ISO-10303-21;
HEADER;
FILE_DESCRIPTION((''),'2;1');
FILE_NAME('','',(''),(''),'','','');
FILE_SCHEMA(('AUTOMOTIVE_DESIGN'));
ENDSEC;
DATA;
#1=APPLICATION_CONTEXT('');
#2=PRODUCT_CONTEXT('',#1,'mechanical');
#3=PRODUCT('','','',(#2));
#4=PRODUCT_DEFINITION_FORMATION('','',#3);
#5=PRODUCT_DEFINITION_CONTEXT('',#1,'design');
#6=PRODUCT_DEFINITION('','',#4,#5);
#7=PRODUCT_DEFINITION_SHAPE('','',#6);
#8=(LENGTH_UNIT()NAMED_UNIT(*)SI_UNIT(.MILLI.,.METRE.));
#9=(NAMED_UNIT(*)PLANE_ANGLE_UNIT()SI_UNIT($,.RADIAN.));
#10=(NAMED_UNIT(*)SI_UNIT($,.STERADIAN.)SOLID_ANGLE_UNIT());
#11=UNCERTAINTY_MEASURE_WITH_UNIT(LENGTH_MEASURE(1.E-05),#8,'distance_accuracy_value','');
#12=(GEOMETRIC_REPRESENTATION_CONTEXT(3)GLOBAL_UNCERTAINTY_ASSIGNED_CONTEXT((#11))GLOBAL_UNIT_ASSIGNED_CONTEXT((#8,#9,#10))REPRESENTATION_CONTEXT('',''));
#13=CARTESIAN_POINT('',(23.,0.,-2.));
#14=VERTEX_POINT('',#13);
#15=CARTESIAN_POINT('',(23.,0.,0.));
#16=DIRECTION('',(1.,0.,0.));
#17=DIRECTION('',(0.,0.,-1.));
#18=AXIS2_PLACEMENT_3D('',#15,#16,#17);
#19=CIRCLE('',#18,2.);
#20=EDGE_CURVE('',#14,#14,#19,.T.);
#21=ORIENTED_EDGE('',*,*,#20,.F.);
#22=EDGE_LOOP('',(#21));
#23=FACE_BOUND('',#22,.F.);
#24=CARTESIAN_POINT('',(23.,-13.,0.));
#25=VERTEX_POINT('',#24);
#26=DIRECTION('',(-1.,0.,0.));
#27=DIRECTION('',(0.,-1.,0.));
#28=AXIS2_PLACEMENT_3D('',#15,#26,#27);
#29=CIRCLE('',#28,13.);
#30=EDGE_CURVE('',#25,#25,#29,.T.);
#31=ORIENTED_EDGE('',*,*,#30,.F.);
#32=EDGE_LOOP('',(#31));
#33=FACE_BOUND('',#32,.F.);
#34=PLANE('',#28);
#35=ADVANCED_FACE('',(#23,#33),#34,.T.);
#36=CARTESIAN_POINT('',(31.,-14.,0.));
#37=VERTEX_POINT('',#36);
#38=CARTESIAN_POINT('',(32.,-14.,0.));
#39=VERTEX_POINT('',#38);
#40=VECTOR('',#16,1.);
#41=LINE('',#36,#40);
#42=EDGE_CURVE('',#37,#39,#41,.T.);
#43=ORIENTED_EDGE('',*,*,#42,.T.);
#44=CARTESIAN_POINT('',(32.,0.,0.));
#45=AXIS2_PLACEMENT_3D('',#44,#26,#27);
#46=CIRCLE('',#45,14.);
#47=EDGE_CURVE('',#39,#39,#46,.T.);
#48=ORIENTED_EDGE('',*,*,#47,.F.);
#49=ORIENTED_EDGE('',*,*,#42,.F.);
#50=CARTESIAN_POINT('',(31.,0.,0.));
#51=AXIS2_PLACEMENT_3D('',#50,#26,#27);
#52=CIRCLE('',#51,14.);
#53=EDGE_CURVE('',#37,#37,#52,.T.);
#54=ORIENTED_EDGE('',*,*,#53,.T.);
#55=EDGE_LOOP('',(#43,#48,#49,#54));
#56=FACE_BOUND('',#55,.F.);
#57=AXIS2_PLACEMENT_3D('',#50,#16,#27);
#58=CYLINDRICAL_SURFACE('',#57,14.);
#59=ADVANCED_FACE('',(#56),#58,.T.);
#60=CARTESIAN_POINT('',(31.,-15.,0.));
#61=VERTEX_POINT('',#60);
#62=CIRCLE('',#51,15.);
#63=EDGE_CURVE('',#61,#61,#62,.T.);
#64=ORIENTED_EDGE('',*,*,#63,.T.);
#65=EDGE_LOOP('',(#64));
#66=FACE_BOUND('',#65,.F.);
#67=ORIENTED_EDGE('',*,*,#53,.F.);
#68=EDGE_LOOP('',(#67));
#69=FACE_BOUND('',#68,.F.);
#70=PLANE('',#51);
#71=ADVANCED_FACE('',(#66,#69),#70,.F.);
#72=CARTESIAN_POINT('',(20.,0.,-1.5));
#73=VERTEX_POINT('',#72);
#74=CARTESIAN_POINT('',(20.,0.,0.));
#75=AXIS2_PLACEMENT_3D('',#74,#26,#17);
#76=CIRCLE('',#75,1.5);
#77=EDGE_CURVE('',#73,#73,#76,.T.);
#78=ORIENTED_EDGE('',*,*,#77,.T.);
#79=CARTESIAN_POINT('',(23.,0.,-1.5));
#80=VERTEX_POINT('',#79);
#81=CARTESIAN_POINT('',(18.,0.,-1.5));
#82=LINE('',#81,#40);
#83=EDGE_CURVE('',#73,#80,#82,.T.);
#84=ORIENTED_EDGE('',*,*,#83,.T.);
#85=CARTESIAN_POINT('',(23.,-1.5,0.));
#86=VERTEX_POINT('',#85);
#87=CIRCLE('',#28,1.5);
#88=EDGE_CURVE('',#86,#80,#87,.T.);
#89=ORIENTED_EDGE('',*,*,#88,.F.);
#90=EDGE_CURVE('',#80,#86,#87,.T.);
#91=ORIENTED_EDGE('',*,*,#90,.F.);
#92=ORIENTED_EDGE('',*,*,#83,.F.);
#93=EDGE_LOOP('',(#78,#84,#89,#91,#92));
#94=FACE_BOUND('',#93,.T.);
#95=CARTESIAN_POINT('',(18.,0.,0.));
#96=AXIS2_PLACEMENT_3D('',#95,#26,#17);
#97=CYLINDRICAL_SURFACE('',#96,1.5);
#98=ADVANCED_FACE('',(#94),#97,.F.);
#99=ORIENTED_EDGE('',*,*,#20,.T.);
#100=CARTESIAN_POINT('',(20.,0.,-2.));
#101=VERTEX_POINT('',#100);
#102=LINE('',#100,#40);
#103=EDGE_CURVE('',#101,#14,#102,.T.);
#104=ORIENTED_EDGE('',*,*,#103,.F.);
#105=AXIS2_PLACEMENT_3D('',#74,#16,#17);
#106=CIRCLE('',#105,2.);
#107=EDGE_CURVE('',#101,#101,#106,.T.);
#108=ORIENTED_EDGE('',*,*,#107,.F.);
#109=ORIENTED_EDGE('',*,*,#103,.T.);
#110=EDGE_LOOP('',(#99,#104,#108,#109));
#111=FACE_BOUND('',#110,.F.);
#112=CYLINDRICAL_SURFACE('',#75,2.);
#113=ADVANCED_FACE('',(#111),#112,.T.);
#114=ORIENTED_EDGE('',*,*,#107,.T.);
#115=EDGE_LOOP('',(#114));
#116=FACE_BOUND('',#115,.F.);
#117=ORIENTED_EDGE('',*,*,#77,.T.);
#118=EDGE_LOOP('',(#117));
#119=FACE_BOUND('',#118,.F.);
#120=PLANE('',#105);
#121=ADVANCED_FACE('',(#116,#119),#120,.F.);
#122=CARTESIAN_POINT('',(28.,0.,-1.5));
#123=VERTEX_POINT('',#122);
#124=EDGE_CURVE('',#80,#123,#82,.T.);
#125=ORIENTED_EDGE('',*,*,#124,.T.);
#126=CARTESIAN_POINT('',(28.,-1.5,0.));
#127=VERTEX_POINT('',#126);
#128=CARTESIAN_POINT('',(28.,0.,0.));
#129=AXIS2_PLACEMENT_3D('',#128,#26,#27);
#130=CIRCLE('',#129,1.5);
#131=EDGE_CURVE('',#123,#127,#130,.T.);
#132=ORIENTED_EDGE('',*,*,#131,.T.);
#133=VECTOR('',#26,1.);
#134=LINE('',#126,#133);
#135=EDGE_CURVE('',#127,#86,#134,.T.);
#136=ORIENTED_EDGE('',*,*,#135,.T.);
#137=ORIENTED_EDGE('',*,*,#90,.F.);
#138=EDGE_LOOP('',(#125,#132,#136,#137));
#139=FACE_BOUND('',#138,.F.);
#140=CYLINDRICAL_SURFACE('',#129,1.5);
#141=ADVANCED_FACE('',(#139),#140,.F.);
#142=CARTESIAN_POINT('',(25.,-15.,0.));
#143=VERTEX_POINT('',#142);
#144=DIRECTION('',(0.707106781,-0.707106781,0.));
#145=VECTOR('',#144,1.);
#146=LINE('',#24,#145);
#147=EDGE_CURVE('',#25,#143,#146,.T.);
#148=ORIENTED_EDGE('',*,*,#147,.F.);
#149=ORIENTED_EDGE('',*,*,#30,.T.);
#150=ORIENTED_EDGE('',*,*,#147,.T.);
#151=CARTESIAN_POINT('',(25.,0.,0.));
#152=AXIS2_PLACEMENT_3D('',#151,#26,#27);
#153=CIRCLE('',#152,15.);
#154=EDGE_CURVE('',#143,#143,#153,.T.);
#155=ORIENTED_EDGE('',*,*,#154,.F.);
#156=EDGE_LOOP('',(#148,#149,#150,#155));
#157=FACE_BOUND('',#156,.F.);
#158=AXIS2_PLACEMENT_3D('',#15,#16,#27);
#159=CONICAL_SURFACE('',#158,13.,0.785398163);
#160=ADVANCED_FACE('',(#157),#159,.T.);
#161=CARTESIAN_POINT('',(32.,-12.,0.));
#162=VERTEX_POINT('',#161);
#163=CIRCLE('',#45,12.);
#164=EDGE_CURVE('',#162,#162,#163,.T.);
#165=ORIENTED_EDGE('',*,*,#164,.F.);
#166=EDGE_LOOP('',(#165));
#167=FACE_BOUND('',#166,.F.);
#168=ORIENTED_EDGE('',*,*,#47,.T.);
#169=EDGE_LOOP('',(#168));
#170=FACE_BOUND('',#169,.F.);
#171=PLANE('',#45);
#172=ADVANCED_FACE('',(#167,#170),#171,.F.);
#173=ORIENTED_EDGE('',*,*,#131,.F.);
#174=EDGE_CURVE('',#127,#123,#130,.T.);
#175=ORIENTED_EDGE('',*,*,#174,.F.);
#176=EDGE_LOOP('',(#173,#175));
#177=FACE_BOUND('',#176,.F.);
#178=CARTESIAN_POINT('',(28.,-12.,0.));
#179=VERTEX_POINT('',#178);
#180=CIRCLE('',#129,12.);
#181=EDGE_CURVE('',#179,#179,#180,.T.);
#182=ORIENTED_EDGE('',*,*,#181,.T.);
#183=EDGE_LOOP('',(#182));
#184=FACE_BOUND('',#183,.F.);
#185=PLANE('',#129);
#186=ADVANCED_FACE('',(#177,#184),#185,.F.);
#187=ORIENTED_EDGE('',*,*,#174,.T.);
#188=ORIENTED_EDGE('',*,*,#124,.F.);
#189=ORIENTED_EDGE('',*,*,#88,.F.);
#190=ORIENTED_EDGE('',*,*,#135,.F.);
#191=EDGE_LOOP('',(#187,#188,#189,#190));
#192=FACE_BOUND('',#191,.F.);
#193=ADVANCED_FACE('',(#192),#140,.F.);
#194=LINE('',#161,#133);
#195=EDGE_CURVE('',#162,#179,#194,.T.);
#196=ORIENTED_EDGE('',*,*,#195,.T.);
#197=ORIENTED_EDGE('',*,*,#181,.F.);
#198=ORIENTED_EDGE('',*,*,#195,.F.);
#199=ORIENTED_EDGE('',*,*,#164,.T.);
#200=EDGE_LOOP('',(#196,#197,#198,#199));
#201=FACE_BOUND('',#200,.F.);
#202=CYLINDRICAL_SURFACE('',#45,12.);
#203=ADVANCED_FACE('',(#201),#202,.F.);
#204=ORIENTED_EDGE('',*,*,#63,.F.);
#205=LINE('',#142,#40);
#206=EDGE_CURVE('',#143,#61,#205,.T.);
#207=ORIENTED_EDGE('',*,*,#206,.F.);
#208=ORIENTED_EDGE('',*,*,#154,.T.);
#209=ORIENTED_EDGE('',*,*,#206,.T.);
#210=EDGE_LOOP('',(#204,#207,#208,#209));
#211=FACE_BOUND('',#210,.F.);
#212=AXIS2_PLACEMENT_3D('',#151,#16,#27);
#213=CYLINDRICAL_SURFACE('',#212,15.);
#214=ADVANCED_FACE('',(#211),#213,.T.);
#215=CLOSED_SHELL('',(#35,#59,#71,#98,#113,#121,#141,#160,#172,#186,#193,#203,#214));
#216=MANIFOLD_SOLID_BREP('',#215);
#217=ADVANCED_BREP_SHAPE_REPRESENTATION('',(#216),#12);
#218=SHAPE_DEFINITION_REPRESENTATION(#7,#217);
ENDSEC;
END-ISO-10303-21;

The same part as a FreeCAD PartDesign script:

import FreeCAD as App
import Part
import Sketcher
from FreeCAD import Vector
Q = App.Units.Quantity

doc = App.newDocument("Part")
params = doc.addObject("Spreadsheet::Sheet", "Params")
for row, (alias, value) in enumerate([
    ("sketch1_diameter", "3 mm"),
    ("pad1_length", "22 mm"),
    ("sketch2_width", "6 mm"),
    ("sketch2_width2", "1 mm"),
    ("sketch2_width3", "4 mm"),
    ("sketch2_width4", "5 mm"),
    ("sketch2_height", "2 mm"),
    ("revolution_angle", "360 deg"),
    ("sketch3_diameter", "4 mm"),
    ("pad2_length", "3 mm"),
], start=1):
    params.set(f"A{row}", alias)
    params.set(f"B{row}", "=" + value)
    params.setAlias(f"B{row}", alias)

body = doc.addObject("PartDesign::Body", "Body")

# Sketch on YZ plane
sketch1 = body.newObject("Sketcher::SketchObject", "Sketch")
sketch1.AttachmentSupport = (doc.getObject("YZ_Plane"), [""])
sketch1.MapMode = "FlatFace"
sketch1.AttachmentOffset = App.Placement(Vector(0, 0, 18), App.Rotation())
sketch1.addGeometry(Part.Circle(Vector(0, 0, 0), Vector(0, 0, 1), 1.5), False)
sketch1.addConstraint(Sketcher.Constraint("Coincident", 0, 3, -1, 1))
sketch1.addConstraint(Sketcher.Constraint("Diameter", 0, Q("3 mm")))
sketch1.setExpression("Constraints[1]", "Params.sketch1_diameter")
pad1 = body.newObject("PartDesign::Pad", "Pad")
pad1.Profile = sketch1
pad1.setExpression("Length", "Params.pad1_length")
body2 = doc.addObject("PartDesign::Body", "Body001")

# Sketch on XY plane
sketch2 = body2.newObject("Sketcher::SketchObject", "Sketch001")
sketch2.AttachmentSupport = (doc.getObject("XY_Plane001"), [""])
sketch2.MapMode = "FlatFace"
sketch2.addGeometry(Part.LineSegment(Vector(0, 1.5, 0), Vector(0, 13, 0)), False)
sketch2.addGeometry(Part.LineSegment(Vector(0, 13, 0), Vector(-2, 15, 0)), False)
sketch2.addGeometry(Part.LineSegment(Vector(-2, 15, 0), Vector(-8, 15, 0)), False)
sketch2.addGeometry(Part.LineSegment(Vector(-8, 15, 0), Vector(-8, 14, 0)), False)
sketch2.addGeometry(Part.LineSegment(Vector(-8, 14, 0), Vector(-9, 14, 0)), False)
sketch2.addGeometry(Part.LineSegment(Vector(-9, 14, 0), Vector(-9, 12, 0)), False)
sketch2.addGeometry(Part.LineSegment(Vector(-9, 12, 0), Vector(-5, 12, 0)), False)
sketch2.addGeometry(Part.LineSegment(Vector(-5, 12, 0), Vector(-5, 1.5, 0)), False)
sketch2.addGeometry(Part.LineSegment(Vector(-5, 1.5, 0), Vector(0, 1.5, 0)), False)
sketch2.addConstraint(Sketcher.Constraint("Coincident", 0, 2, 1, 1))
sketch2.addConstraint(Sketcher.Constraint("Coincident", 1, 2, 2, 1))
sketch2.addConstraint(Sketcher.Constraint("Coincident", 2, 2, 3, 1))
sketch2.addConstraint(Sketcher.Constraint("Coincident", 3, 2, 4, 1))
sketch2.addConstraint(Sketcher.Constraint("Coincident", 4, 2, 5, 1))
sketch2.addConstraint(Sketcher.Constraint("Coincident", 5, 2, 6, 1))
sketch2.addConstraint(Sketcher.Constraint("Coincident", 6, 2, 7, 1))
sketch2.addConstraint(Sketcher.Constraint("Coincident", 7, 2, 8, 1))
sketch2.addConstraint(Sketcher.Constraint("Coincident", 8, 2, 0, 1))
sketch2.addConstraint(Sketcher.Constraint("Vertical", 0))
sketch2.addConstraint(Sketcher.Constraint("Horizontal", 2))
sketch2.addConstraint(Sketcher.Constraint("Vertical", 3))
sketch2.addConstraint(Sketcher.Constraint("Horizontal", 4))
sketch2.addConstraint(Sketcher.Constraint("Vertical", 5))
sketch2.addConstraint(Sketcher.Constraint("Horizontal", 6))
sketch2.addConstraint(Sketcher.Constraint("Vertical", 7))
sketch2.addConstraint(Sketcher.Constraint("Horizontal", 8))
sketch2.addConstraint(Sketcher.Constraint("PointOnObject", 0, 2, -2))
sketch2.addConstraint(Sketcher.Constraint("Equal", 4, 3))
sketch2.addConstraint(Sketcher.Constraint("DistanceX", 2, 2, 2, 1, Q("6 mm")))
sketch2.addConstraint(Sketcher.Constraint("DistanceX", 4, 2, 4, 1, Q("1 mm")))
sketch2.addConstraint(Sketcher.Constraint("DistanceX", 6, 1, 6, 2, Q("4 mm")))
sketch2.addConstraint(Sketcher.Constraint("DistanceX", 8, 1, 8, 2, Q("5 mm")))
sketch2.addConstraint(Sketcher.Constraint("DistanceY", 5, 2, 5, 1, Q("2 mm")))
sketch2.addConstraint(Sketcher.Constraint("Angle", 1, Q("135 deg")))
sketch2.addConstraint(Sketcher.Constraint("DistanceY", 0, 1, 0, 2, Q("11.5 mm")))
sketch2.addConstraint(Sketcher.Constraint("DistanceY", -1, 1, 0, 2, Q("13 mm")))
sketch2.setExpression("Constraints[19]", "Params.sketch2_width")
sketch2.setExpression("Constraints[20]", "Params.sketch2_width2")
sketch2.setExpression("Constraints[21]", "Params.sketch2_width3")
sketch2.setExpression("Constraints[22]", "Params.sketch2_width4")
sketch2.setExpression("Constraints[23]", "Params.sketch2_height")
revolution = body2.newObject("PartDesign::Revolution", "Revolution")
revolution.Profile = sketch2
revolution.ReferenceAxis = (sketch2, ["H_Axis"])
revolution.setExpression("Angle", "Params.revolution_angle")
body3 = doc.addObject("PartDesign::Body", "Body002")
doc.recompute()

body2.Placement = App.Placement(Vector(12, 0, 0), App.Rotation(Vector(0, 0, 1), 180))
boolean = body3.newObject("PartDesign::Boolean", "Boolean")
boolean.Type = "Fuse"
boolean.addObjects([body2])
body4 = doc.addObject("PartDesign::Body", "Body003")

# Sketch on YZ plane
sketch3 = body4.newObject("Sketcher::SketchObject", "Sketch002")
sketch3.AttachmentSupport = (doc.getObject("YZ_Plane003"), [""])
sketch3.MapMode = "FlatFace"
sketch3.AttachmentOffset = App.Placement(Vector(0, 0, 9), App.Rotation())
sketch3.addGeometry(Part.Circle(Vector(0, 0, 0), Vector(0, 0, 1), 2), False)
sketch3.addConstraint(Sketcher.Constraint("Coincident", 0, 3, -1, 1))
sketch3.addConstraint(Sketcher.Constraint("Diameter", 0, Q("4 mm")))
sketch3.setExpression("Constraints[1]", "Params.sketch3_diameter")
pad2 = body4.newObject("PartDesign::Pad", "Pad001")
pad2.Profile = sketch3
pad2.setExpression("Length", "Params.pad2_length")
doc.recompute()

boolean2 = body4.newObject("PartDesign::Boolean", "Boolean001")
boolean2.Type = "Fuse"
boolean2.addObjects([body3])
body5 = doc.addObject("PartDesign::Body", "Body004")
doc.recompute()

body4.Placement = App.Placement(Vector(11, 0, 0), App.Rotation(Vector(0, 0, 1), 0))
boolean3 = body5.newObject("PartDesign::Boolean", "Boolean002")
boolean3.Type = "Fuse"
boolean3.addObjects([body4])
doc.recompute()

boolean4 = body5.newObject("PartDesign::Boolean", "Boolean003")
boolean4.Type = "Cut"
boolean4.addObjects([body])

doc.recompute()
